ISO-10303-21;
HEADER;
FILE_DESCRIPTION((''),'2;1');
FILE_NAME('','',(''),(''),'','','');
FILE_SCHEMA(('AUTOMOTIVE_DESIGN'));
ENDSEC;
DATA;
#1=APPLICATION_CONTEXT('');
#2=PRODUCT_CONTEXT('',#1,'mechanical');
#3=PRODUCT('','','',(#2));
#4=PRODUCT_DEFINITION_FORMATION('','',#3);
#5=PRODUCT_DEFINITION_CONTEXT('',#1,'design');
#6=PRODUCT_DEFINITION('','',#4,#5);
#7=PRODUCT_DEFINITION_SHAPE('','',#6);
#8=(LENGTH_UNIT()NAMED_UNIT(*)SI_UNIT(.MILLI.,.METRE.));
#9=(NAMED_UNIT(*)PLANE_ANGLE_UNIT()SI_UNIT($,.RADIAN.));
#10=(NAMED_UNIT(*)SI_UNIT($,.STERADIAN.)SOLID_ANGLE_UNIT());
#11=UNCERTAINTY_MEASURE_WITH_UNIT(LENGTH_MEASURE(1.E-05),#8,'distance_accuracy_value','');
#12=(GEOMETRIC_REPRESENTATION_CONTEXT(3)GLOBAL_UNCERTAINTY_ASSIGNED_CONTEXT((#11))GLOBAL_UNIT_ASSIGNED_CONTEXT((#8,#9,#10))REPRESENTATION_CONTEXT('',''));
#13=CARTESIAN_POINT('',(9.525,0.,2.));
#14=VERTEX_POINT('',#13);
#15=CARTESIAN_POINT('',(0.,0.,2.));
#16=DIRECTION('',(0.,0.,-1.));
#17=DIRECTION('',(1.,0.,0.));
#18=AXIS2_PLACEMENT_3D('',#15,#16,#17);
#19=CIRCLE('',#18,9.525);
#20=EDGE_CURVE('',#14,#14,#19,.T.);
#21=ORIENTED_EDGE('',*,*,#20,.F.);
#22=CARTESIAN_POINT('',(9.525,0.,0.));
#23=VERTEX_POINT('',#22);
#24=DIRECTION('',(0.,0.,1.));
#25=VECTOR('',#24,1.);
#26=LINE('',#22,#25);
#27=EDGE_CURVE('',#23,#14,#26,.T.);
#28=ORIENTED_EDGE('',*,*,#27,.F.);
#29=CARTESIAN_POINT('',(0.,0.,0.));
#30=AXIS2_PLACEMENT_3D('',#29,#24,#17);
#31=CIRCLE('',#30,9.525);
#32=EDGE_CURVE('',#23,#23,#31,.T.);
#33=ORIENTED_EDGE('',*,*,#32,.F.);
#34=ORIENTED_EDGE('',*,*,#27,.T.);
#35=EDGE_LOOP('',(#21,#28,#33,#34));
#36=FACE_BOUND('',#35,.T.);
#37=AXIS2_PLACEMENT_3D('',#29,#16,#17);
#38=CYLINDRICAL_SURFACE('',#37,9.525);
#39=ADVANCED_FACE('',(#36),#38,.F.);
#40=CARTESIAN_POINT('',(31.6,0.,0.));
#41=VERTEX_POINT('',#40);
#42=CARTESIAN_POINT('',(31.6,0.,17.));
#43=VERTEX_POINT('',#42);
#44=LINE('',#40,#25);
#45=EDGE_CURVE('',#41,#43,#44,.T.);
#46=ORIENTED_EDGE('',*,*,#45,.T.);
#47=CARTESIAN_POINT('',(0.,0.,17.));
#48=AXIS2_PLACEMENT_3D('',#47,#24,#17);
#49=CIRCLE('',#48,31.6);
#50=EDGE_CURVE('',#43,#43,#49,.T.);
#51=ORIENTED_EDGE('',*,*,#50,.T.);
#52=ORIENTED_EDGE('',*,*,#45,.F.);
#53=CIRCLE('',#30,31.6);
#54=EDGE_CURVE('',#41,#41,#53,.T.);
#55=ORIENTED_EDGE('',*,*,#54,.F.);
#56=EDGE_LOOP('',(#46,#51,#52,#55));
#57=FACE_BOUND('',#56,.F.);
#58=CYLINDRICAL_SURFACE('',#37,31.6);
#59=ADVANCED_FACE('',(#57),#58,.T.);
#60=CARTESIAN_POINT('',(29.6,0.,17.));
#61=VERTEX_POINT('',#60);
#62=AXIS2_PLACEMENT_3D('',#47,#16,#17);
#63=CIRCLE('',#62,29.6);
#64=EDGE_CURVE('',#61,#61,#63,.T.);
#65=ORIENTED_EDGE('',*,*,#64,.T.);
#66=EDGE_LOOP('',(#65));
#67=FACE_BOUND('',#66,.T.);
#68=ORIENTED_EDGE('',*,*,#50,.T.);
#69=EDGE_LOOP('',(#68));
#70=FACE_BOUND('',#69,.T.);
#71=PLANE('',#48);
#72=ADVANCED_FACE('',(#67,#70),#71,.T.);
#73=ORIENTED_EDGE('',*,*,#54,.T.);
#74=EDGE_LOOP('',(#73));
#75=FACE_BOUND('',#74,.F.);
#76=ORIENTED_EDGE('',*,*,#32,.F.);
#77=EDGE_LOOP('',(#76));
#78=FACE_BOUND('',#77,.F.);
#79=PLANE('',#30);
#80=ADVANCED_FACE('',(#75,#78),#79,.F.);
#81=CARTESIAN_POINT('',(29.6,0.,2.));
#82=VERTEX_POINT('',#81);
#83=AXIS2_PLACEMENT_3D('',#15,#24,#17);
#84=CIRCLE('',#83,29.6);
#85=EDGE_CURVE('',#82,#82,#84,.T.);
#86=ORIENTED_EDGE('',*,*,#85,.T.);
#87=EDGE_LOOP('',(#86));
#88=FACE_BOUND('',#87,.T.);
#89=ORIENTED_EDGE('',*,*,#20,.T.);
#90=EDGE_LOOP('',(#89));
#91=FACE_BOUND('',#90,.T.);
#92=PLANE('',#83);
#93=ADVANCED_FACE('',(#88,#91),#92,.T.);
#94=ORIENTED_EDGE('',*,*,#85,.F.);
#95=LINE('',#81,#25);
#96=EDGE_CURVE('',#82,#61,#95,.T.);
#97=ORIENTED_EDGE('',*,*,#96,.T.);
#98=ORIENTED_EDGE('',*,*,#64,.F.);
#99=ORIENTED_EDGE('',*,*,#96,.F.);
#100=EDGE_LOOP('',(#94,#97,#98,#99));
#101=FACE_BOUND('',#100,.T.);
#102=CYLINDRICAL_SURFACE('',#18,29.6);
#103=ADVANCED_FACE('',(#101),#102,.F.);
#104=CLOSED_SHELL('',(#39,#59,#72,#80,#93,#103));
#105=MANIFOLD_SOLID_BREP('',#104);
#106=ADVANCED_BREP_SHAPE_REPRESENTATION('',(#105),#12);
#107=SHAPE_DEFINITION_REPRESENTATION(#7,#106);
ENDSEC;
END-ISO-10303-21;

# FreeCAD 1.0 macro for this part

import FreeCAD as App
import Part
import Sketcher

doc = App.newDocument("Part")
body = doc.addObject("PartDesign::Body", "Body")

# Sketch on XY plane
sketch1 = body.newObject("Sketcher::SketchObject", "Sketch")
sketch1.AttachmentSupport = (doc.getObject("XY_Plane"), [""])
sketch1.MapMode = "FlatFace"
sketch1.addGeometry(Part.Circle(App.Vector(0, 0, 0), App.Vector(0, 0, 1), 32), False)
sketch1.addGeometry(Part.Circle(App.Vector(0, 0, 0), App.Vector(0, 0, 1), 10), False)
sketch1.addConstraint(Sketcher.Constraint("Coincident", 0, 3, -1, 1))
sketch1.addConstraint(Sketcher.Constraint("Coincident", 1, 3, -1, 1))
sketch1.addConstraint(Sketcher.Constraint("Diameter", 0, 63.2))
sketch1.addConstraint(Sketcher.Constraint("Diameter", 1, 19.05))
pad1 = body.newObject("PartDesign::Pad", "Pad")
pad1.Profile = sketch1
pad1.Length = 17

# Sketch on XY plane
sketch2 = body.newObject("Sketcher::SketchObject", "Sketch001")
sketch2.AttachmentSupport = (doc.getObject("XY_Plane"), [""])
sketch2.MapMode = "FlatFace"
sketch2.AttachmentOffset = App.Placement(App.Vector(0, 0, 2), App.Rotation())
sketch2.addGeometry(Part.Circle(App.Vector(0, 0, 0), App.Vector(0, 0, 1), 30), False)
sketch2.addConstraint(Sketcher.Constraint("Coincident", 0, 3, -1, 1))
sketch2.addConstraint(Sketcher.Constraint("Diameter", 0, 59.2))
pocket1 = body.newObject("PartDesign::Pocket", "Pocket")
pocket1.Profile = sketch2
pocket1.Type = "ThroughAll"
pocket1.Reversed = True

doc.recompute()
